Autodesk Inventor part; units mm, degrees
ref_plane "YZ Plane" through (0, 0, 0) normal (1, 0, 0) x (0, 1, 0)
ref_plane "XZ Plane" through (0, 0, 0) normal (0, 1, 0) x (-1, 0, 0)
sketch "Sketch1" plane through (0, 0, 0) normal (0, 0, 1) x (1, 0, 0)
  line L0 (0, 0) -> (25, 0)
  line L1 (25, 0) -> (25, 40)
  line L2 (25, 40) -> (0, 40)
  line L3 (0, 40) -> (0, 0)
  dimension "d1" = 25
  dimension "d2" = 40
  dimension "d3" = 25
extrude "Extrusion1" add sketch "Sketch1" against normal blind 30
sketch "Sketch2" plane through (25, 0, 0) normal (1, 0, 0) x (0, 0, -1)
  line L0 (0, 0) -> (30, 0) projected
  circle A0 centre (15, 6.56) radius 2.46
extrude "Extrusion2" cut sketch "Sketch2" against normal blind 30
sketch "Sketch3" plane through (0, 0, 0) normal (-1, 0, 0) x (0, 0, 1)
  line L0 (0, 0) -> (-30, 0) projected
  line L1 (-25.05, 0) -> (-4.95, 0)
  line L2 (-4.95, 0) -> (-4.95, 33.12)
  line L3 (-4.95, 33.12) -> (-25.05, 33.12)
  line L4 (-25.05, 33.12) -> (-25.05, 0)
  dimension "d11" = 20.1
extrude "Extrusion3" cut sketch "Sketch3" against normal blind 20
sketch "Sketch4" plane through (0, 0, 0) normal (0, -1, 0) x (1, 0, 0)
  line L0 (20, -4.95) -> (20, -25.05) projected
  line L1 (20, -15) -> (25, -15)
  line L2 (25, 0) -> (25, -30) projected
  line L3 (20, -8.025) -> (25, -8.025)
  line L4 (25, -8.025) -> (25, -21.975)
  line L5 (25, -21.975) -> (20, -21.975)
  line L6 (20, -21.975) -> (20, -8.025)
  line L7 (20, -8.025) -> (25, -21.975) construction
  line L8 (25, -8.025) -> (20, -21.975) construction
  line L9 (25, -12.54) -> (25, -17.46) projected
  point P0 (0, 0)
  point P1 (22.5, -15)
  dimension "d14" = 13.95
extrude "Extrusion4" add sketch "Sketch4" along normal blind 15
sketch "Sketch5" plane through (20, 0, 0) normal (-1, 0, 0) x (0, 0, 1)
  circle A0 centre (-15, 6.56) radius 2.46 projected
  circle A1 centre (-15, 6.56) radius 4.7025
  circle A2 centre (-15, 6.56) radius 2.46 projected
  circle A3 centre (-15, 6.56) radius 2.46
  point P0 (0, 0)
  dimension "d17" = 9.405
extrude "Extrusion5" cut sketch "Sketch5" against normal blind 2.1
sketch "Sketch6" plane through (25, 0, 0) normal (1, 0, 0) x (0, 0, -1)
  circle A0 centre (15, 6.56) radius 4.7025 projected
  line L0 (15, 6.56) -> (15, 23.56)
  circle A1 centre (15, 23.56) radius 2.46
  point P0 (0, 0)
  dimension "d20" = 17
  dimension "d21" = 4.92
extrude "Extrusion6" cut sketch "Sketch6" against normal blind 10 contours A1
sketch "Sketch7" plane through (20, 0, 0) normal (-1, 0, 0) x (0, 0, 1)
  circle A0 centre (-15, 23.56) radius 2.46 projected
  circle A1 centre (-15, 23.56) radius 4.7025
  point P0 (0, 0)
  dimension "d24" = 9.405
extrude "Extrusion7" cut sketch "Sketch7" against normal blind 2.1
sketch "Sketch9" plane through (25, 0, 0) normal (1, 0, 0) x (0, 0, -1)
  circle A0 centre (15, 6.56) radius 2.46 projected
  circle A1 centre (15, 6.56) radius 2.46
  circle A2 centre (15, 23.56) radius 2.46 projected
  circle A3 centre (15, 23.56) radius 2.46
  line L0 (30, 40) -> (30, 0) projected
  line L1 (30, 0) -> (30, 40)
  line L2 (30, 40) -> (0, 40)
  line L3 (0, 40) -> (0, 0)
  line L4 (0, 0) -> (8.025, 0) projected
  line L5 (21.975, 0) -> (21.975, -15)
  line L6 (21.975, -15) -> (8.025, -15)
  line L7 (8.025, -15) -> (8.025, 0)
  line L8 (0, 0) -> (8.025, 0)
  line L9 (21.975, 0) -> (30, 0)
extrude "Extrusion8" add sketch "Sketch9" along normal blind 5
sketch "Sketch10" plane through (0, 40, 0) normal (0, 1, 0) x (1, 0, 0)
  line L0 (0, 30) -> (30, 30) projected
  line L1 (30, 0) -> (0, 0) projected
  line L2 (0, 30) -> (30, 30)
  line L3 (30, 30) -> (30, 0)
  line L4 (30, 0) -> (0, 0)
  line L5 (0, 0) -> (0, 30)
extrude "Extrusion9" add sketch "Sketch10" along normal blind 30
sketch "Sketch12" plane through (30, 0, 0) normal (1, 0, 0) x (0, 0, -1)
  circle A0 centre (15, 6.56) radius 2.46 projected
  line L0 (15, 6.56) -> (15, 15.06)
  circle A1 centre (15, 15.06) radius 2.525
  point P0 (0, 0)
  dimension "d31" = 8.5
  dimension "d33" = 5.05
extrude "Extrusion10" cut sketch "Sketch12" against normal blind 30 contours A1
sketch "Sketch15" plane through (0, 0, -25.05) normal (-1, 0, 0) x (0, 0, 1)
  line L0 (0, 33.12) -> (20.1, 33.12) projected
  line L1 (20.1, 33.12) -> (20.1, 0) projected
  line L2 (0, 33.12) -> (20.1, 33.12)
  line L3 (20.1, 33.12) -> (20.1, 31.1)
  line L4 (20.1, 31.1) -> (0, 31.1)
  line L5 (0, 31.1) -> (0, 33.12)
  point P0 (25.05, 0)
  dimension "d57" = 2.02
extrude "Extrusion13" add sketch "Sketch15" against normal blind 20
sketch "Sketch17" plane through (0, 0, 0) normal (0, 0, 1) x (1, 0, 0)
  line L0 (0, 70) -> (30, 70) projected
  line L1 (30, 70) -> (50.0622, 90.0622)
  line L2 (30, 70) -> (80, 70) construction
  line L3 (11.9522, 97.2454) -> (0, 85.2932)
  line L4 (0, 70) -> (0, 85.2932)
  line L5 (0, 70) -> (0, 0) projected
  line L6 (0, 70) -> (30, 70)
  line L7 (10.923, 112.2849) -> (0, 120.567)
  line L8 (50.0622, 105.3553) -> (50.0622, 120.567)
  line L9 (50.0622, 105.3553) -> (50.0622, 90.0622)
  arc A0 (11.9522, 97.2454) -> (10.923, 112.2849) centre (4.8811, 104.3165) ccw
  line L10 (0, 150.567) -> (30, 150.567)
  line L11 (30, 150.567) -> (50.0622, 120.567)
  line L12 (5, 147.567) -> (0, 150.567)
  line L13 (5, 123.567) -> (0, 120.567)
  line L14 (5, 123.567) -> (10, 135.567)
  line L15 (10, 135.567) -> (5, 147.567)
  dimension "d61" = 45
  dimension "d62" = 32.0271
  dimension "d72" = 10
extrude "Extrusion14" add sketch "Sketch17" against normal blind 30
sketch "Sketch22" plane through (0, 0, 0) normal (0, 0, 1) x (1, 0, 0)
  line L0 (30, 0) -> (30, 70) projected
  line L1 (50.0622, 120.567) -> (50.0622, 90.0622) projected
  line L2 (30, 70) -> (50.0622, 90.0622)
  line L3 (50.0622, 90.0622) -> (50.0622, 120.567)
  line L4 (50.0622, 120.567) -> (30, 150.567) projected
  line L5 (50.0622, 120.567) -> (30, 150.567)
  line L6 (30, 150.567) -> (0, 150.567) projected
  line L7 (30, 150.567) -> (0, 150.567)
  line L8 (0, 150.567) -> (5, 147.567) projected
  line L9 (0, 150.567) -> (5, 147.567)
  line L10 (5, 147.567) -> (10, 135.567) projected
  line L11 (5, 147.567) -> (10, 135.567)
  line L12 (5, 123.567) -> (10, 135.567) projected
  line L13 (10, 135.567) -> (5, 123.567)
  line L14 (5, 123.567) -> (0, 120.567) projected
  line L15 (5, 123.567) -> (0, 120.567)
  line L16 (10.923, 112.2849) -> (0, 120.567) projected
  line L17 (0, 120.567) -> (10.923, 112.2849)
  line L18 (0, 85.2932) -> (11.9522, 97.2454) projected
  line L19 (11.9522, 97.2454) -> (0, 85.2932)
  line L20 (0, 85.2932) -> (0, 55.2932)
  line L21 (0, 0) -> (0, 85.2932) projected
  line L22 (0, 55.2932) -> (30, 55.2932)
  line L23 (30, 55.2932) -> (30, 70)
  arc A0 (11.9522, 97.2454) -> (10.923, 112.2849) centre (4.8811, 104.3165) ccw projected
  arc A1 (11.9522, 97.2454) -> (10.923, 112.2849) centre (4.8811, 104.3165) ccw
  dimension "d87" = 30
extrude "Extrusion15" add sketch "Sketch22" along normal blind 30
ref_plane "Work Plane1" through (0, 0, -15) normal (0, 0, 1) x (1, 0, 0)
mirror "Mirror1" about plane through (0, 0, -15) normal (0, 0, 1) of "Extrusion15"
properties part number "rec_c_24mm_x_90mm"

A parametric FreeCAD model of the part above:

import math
import FreeCAD as App
import Part
import Sketcher

V = App.Vector
Q = App.Units.Quantity

doc = App.newDocument("Part")
body = doc.addObject("PartDesign::Body", "Body")

# Sketch on XY plane
sketch1 = body.newObject("Sketcher::SketchObject", "Sketch")
sketch1.AttachmentSupport = (doc.getObject("XY_Plane"), [""])
sketch1.MapMode = "FlatFace"
sketch1.addGeometry([
    Part.LineSegment(V(0, 40, 0), V(0, 0, 0)),
    Part.LineSegment(V(0, 0, 0), V(25, 0, 0)),
    Part.LineSegment(V(25, 0, 0), V(25, 40, 0)),
    Part.LineSegment(V(25, 40, 0), V(0, 40, 0)),
], False)
sketch1.addConstraint([
    Sketcher.Constraint("Coincident", 0, 2, 1, 1),
    Sketcher.Constraint("Coincident", 1, 2, 2, 1),
    Sketcher.Constraint("Coincident", 2, 2, 3, 1),
    Sketcher.Constraint("Coincident", 3, 2, 0, 1),
    Sketcher.Constraint("Vertical", 0),
    Sketcher.Constraint("Horizontal", 1),
    Sketcher.Constraint("Vertical", 2),
    Sketcher.Constraint("Horizontal", 3),
    Sketcher.Constraint("Coincident", 0, 2, -1, 1),
    Sketcher.Constraint("DistanceX", 1, 1, 1, 2, Q("25 mm")),
    Sketcher.Constraint("DistanceY", 0, 2, 0, 1, Q("40 mm")),
])
pad1 = body.newObject("PartDesign::Pad", "Pad")
pad1.Profile = sketch1
pad1.Length = 30
pad1.Reversed = True

# Sketch on YZ plane
sketch2 = body.newObject("Sketcher::SketchObject", "Sketch001")
sketch2.AttachmentSupport = (doc.getObject("YZ_Plane"), [""])
sketch2.MapMode = "FlatFace"
sketch2.AttachmentOffset = App.Placement(V(0, 0, 25), App.Rotation())
sketch2.addGeometry(Part.Circle(V(6.6, -15, 0), V(0, 0, 1), 2.5), False)
sketch2.addConstraint([
    Sketcher.Constraint("Diameter", 0, Q("4.92 mm")),
    Sketcher.Constraint("DistanceY", 0, 3, -1, 1, Q("15 mm")),
    Sketcher.Constraint("DistanceX", -1, 1, 0, 3, Q("6.56 mm")),
])
pocket1 = body.newObject("PartDesign::Pocket", "Pocket")
pocket1.Profile = sketch2
pocket1.Length = 30

# Sketch on YZ plane
sketch3 = body.newObject("Sketcher::SketchObject", "Sketch002")
sketch3.AttachmentSupport = (doc.getObject("YZ_Plane"), [""])
sketch3.MapMode = "FlatFace"
sketch3.addGeometry([
    Part.LineSegment(V(0, -25, 0), V(0, -5, 0)),
    Part.LineSegment(V(0, -5, 0), V(33, -5, 0)),
    Part.LineSegment(V(33, -5, 0), V(33, -25, 0)),
    Part.LineSegment(V(33, -25, 0), V(0, -25, 0)),
], False)
sketch3.addConstraint([
    Sketcher.Constraint("Coincident", 0, 2, 1, 1),
    Sketcher.Constraint("Coincident", 1, 2, 2, 1),
    Sketcher.Constraint("Coincident", 2, 2, 3, 1),
    Sketcher.Constraint("Coincident", 3, 2, 0, 1),
    Sketcher.Constraint("Vertical", 0),
    Sketcher.Constraint("Horizontal", 1),
    Sketcher.Constraint("Vertical", 2),
    Sketcher.Constraint("Horizontal", 3),
    Sketcher.Constraint("PointOnObject", 0, 2, -2),
    Sketcher.Constraint("DistanceY", 0, 1, 0, 2, Q("20.1 mm")),
    Sketcher.Constraint("DistanceX", 1, 1, 1, 2, Q("33.12 mm")),
    Sketcher.Constraint("DistanceY", 0, 2, -1, 1, Q("4.95 mm")),
])
pocket2 = body.newObject("PartDesign::Pocket", "Pocket001")
pocket2.Profile = sketch3
pocket2.Length = 20
pocket2.Reversed = True

# Sketch on XZ plane
sketch4 = body.newObject("Sketcher::SketchObject", "Sketch003")
sketch4.AttachmentSupport = (doc.getObject("XZ_Plane"), [""])
sketch4.MapMode = "FlatFace"
sketch4.addGeometry([
    Part.LineSegment(V(25, -8, 0), V(20, -8, 0)),
    Part.LineSegment(V(20, -8, 0), V(20, -22, 0)),
    Part.LineSegment(V(20, -22, 0), V(25, -22, 0)),
    Part.LineSegment(V(25, -22, 0), V(25, -8, 0)),
], False)
sketch4.addConstraint([
    Sketcher.Constraint("Coincident", 0, 2, 1, 1),
    Sketcher.Constraint("Coincident", 1, 2, 2, 1),
    Sketcher.Constraint("Coincident", 2, 2, 3, 1),
    Sketcher.Constraint("Coincident", 3, 2, 0, 1),
    Sketcher.Constraint("Horizontal", 0),
    Sketcher.Constraint("Vertical", 1),
    Sketcher.Constraint("Horizontal", 2),
    Sketcher.Constraint("Vertical", 3),
    Sketcher.Constraint("DistanceY", 1, 2, 1, 1, Q("13.95 mm")),
    Sketcher.Constraint("DistanceX", 0, 2, 0, 1, Q("5 mm")),
    Sketcher.Constraint("DistanceX", -1, 1, 0, 2, Q("20 mm")),
    Sketcher.Constraint("DistanceY", 0, 2, -1, 1, Q("8.025 mm")),
])
pad2 = body.newObject("PartDesign::Pad", "Pad001")
pad2.Profile = sketch4
pad2.Length = 15

# Sketch on YZ plane
sketch5 = body.newObject("Sketcher::SketchObject", "Sketch004")
sketch5.AttachmentSupport = (doc.getObject("YZ_Plane"), [""])
sketch5.MapMode = "FlatFace"
sketch5.AttachmentOffset = App.Placement(V(0, 0, 20), App.Rotation())
sketch5.addGeometry([
    Part.Circle(V(6.6, -15, 0), V(0, 0, 1), 4.7),
    Part.Circle(V(6.6, -15, 0), V(0, 0, 1), 2.5),
], False)
sketch5.addConstraint([
    Sketcher.Constraint("Coincident", 1, 3, 0, 3),
    Sketcher.Constraint("Diameter", 0, Q("9.405 mm")),
    Sketcher.Constraint("Diameter", 1, Q("4.92 mm")),
    Sketcher.Constraint("DistanceY", 0, 3, -1, 1, Q("15 mm")),
    Sketcher.Constraint("DistanceX", -1, 1, 0, 3, Q("6.56 mm")),
])
pocket3 = body.newObject("PartDesign::Pocket", "Pocket002")
pocket3.Profile = sketch5
pocket3.Length = 2.1
pocket3.Reversed = True

# Sketch on YZ plane
sketch6 = body.newObject("Sketcher::SketchObject", "Sketch005")
sketch6.AttachmentSupport = (doc.getObject("YZ_Plane"), [""])
sketch6.MapMode = "FlatFace"
sketch6.AttachmentOffset = App.Placement(V(0, 0, 25), App.Rotation())
sketch6.addGeometry(Part.Circle(V(23.6, -15, 0), V(0, 0, 1), 2.5), False)
sketch6.addConstraint([
    Sketcher.Constraint("Diameter", 0, Q("4.92 mm")),
    Sketcher.Constraint("DistanceY", 0, 3, -1, 1, Q("15 mm")),
    Sketcher.Constraint("DistanceX", -1, 1, 0, 3, Q("23.56 mm")),
])
pocket4 = body.newObject("PartDesign::Pocket", "Pocket003")
pocket4.Profile = sketch6
pocket4.Length = 10

# Sketch on YZ plane
sketch7 = body.newObject("Sketcher::SketchObject", "Sketch006")
sketch7.AttachmentSupport = (doc.getObject("YZ_Plane"), [""])
sketch7.MapMode = "FlatFace"
sketch7.AttachmentOffset = App.Placement(V(0, 0, 20), App.Rotation())
sketch7.addGeometry([
    Part.Circle(V(23.6, -15, 0), V(0, 0, 1), 4.7),
    Part.Circle(V(23.6, -15, 0), V(0, 0, 1), 2.5),
], False)
sketch7.addConstraint([
    Sketcher.Constraint("Coincident", 1, 3, 0, 3),
    Sketcher.Constraint("Diameter", 0, Q("9.405 mm")),
    Sketcher.Constraint("Diameter", 1, Q("4.92 mm")),
    Sketcher.Constraint("DistanceY", 0, 3, -1, 1, Q("15 mm")),
    Sketcher.Constraint("DistanceX", -1, 1, 0, 3, Q("23.56 mm")),
])
pocket5 = body.newObject("PartDesign::Pocket", "Pocket004")
pocket5.Profile = sketch7
pocket5.Length = 2.1
pocket5.Reversed = True

# Sketch on YZ plane
sketch8 = body.newObject("Sketcher::SketchObject", "Sketch007")
sketch8.AttachmentSupport = (doc.getObject("YZ_Plane"), [""])
sketch8.MapMode = "FlatFace"
sketch8.AttachmentOffset = App.Placement(V(0, 0, 25), App.Rotation())
sketch8.addGeometry([
    Part.LineSegment(V(0, -30, 0), V(40, -30, 0)),  # 0
    Part.LineSegment(V(40, -30, 0), V(40, 0, 0)),  # 1
    Part.LineSegment(V(40, 0, 0), V(0, 0, 0)),  # 2
    Part.LineSegment(V(0, 0, 0), V(0, -8, 0)),  # 3
    Part.LineSegment(V(0, -8, 0), V(-15, -8, 0)),  # 4
    Part.LineSegment(V(-15, -8, 0), V(-15, -22, 0)),  # 5
    Part.LineSegment(V(-15, -22, 0), V(0, -22, 0)),  # 6
    Part.LineSegment(V(0, -22, 0), V(0, -30, 0)),  # 7
    Part.Circle(V(6.6, -15, 0), V(0, 0, 1), 2.5),  # 8
    Part.Circle(V(23.6, -15, 0), V(0, 0, 1), 2.5),  # 9
], False)
sketch8.addConstraint([
    Sketcher.Constraint("Coincident", 0, 2, 1, 1),
    Sketcher.Constraint("Coincident", 1, 2, 2, 1),
    Sketcher.Constraint("Coincident", 2, 2, 3, 1),
    Sketcher.Constraint("Coincident", 3, 2, 4, 1),
    Sketcher.Constraint("Coincident", 4, 2, 5, 1),
    Sketcher.Constraint("Coincident", 5, 2, 6, 1),
    Sketcher.Constraint("Coincident", 6, 2, 7, 1),
    Sketcher.Constraint("Coincident", 7, 2, 0, 1),
    Sketcher.Constraint("Horizontal", 0),
    Sketcher.Constraint("Vertical", 1),
    Sketcher.Constraint("Horizontal", 2),
    Sketcher.Constraint("Vertical", 3),
    Sketcher.Constraint("Horizontal", 4),
    Sketcher.Constraint("Vertical", 5),
    Sketcher.Constraint("Horizontal", 6),
    Sketcher.Constraint("Vertical", 7),
    Sketcher.Constraint("Coincident", 2, 2, -1, 1),
    Sketcher.Constraint("Equal", 8, 9),
    Sketcher.Constraint("PointOnObject", 6, 2, -2),
    Sketcher.Constraint("Horizontal", 8, 3, 9, 3),
    Sketcher.Constraint("Equal", 3, 7),
    Sketcher.Constraint("Diameter", 8, Q("4.92 mm")),
    Sketcher.Constraint("DistanceX", 0, 1, 0, 2, Q("40 mm")),
    Sketcher.Constraint("DistanceX", 4, 2, 4, 1, Q("15 mm")),
    Sketcher.Constraint("DistanceY", 1, 1, 1, 2, Q("30 mm")),
    Sketcher.Constraint("DistanceY", 8, 3, -1, 1, Q("15 mm")),
    Sketcher.Constraint("DistanceX", 8, 3, 9, 3, Q("17 mm")),
    Sketcher.Constraint("DistanceY", 5, 2, 5, 1, Q("13.95 mm")),
    Sketcher.Constraint("DistanceX", -1, 1, 8, 3, Q("6.56 mm")),
])
pad3 = body.newObject("PartDesign::Pad", "Pad002")
pad3.Profile = sketch8
pad3.Length = 5

# Sketch on XZ plane
sketch9 = body.newObject("Sketcher::SketchObject", "Sketch008")
sketch9.AttachmentSupport = (doc.getObject("XZ_Plane"), [""])
sketch9.MapMode = "FlatFace"
sketch9.AttachmentOffset = App.Placement(V(0, 0, -40), App.Rotation())
sketch9.addGeometry([
    Part.LineSegment(V(30, -30, 0), V(0, -30, 0)),
    Part.LineSegment(V(0, -30, 0), V(0, 0, 0)),
    Part.LineSegment(V(0, 0, 0), V(30, 0, 0)),
    Part.LineSegment(V(30, 0, 0), V(30, -30, 0)),
], False)
sketch9.addConstraint([
    Sketcher.Constraint("Coincident", 0, 2, 1, 1),
    Sketcher.Constraint("Coincident", 1, 2, 2, 1),
    Sketcher.Constraint("Coincident", 2, 2, 3, 1),
    Sketcher.Constraint("Coincident", 3, 2, 0, 1),
    Sketcher.Constraint("Horizontal", 0),
    Sketcher.Constraint("Vertical", 1),
    Sketcher.Constraint("Horizontal", 2),
    Sketcher.Constraint("Vertical", 3),
    Sketcher.Constraint("Coincident", 1, 2, -1, 1),
    Sketcher.Constraint("Equal", 2, 1),
    Sketcher.Constraint("DistanceX", 0, 2, 0, 1, Q("30 mm")),
])
pad4 = body.newObject("PartDesign::Pad", "Pad003")
pad4.Profile = sketch9
pad4.Length = 30
pad4.Reversed = True

# Sketch on YZ plane
sketch10 = body.newObject("Sketcher::SketchObject", "Sketch009")
sketch10.AttachmentSupport = (doc.getObject("YZ_Plane"), [""])
sketch10.MapMode = "FlatFace"
sketch10.AttachmentOffset = App.Placement(V(0, 0, 30), App.Rotation())
sketch10.addGeometry(Part.Circle(V(15.1, -15, 0), V(0, 0, 1), 2.5), False)
sketch10.addConstraint([
    Sketcher.Constraint("Diameter", 0, Q("5.05 mm")),
    Sketcher.Constraint("DistanceY", 0, 3, -1, 1, Q("15 mm")),
    Sketcher.Constraint("DistanceX", -1, 1, 0, 3, Q("15.06 mm")),
])
pocket6 = body.newObject("PartDesign::Pocket", "Pocket005")
pocket6.Profile = sketch10
pocket6.Length = 30

# Sketch on YZ plane
sketch11 = body.newObject("Sketcher::SketchObject", "Sketch010")
sketch11.AttachmentSupport = (doc.getObject("YZ_Plane"), [""])
sketch11.MapMode = "FlatFace"
sketch11.addGeometry([
    Part.LineSegment(V(33.1, -5, 0), V(33.1, -25.1, 0)),
    Part.LineSegment(V(33.1, -25.1, 0), V(31.1, -25.1, 0)),
    Part.LineSegment(V(31.1, -25.1, 0), V(31.1, -5, 0)),
    Part.LineSegment(V(31.1, -5, 0), V(33.1, -5, 0)),
], False)
sketch11.addConstraint([
    Sketcher.Constraint("Coincident", 0, 2, 1, 1),
    Sketcher.Constraint("Coincident", 1, 2, 2, 1),
    Sketcher.Constraint("Coincident", 2, 2, 3, 1),
    Sketcher.Constraint("Coincident", 3, 2, 0, 1),
    Sketcher.Constraint("Vertical", 0),
    Sketcher.Constraint("Horizontal", 1),
    Sketcher.Constraint("Vertical", 2),
    Sketcher.Constraint("Horizontal", 3),
    Sketcher.Constraint("DistanceX", 1, 2, 1, 1, Q("2.02 mm")),
    Sketcher.Constraint("DistanceY", 0, 2, 0, 1, Q("20.1 mm")),
    Sketcher.Constraint("DistanceX", -1, 1, 1, 2, Q("31.1 mm")),
    Sketcher.Constraint("DistanceY", 0, 2, -1, 1, Q("25.05 mm")),
])
pad5 = body.newObject("PartDesign::Pad", "Pad004")
pad5.Profile = sketch11
pad5.Length = 20

# Sketch on XY plane
sketch12 = body.newObject("Sketcher::SketchObject", "Sketch011")
sketch12.AttachmentSupport = (doc.getObject("XY_Plane"), [""])
sketch12.MapMode = "FlatFace"
sketch12.addGeometry([
    Part.LineSegment(V(0, 85, 0), V(0, 70, 0)),  # 0
    Part.LineSegment(V(0, 70, 0), V(30, 70, 0)),  # 1
    Part.LineSegment(V(30, 70, 0), V(50, 90, 0)),  # 2
    Part.LineSegment(V(50, 90, 0), V(50, 121, 0)),  # 3
    Part.LineSegment(V(50, 121, 0), V(30, 151, 0)),  # 4
    Part.LineSegment(V(30, 151, 0), V(0, 151, 0)),  # 5
    Part.LineSegment(V(0, 151, 0), V(5, 148, 0)),  # 6
    Part.LineSegment(V(5, 148, 0), V(10, 136, 0)),  # 7
    Part.LineSegment(V(10, 136, 0), V(5, 124, 0)),  # 8
    Part.LineSegment(V(5, 124, 0), V(0, 121, 0)),  # 9
    Part.LineSegment(V(0, 121, 0), V(11, 112, 0)),  # 10
    Part.ArcOfCircle(Part.Circle(V(5, 104, 0), V(0, 0, 1), 10), math.radians(-45), math.radians(53)),  # 11
    Part.LineSegment(V(12, 97, 0), V(0, 85, 0)),  # 12
], False)
sketch12.addConstraint([
    Sketcher.Constraint("Coincident", 0, 2, 1, 1),
    Sketcher.Constraint("Coincident", 1, 2, 2, 1),
    Sketcher.Constraint("Coincident", 2, 2, 3, 1),
    Sketcher.Constraint("Coincident", 3, 2, 4, 1),
    Sketcher.Constraint("Coincident", 4, 2, 5, 1),
    Sketcher.Constraint("Coincident", 5, 2, 6, 1),
    Sketcher.Constraint("Coincident", 6, 2, 7, 1),
    Sketcher.Constraint("Coincident", 7, 2, 8, 1),
    Sketcher.Constraint("Coincident", 8, 2, 9, 1),
    Sketcher.Constraint("Coincident", 9, 2, 10, 1),
    Sketcher.Constraint("Tangent", 10, 2, 11, 2),
    Sketcher.Constraint("Tangent", 11, 1, 12, 1),
    Sketcher.Constraint("Coincident", 12, 2, 0, 1),
    Sketcher.Constraint("Vertical", 0),
    Sketcher.Constraint("Horizontal", 1),
    Sketcher.Constraint("Vertical", 3),
    Sketcher.Constraint("Horizontal", 5),
    Sketcher.Constraint("PointOnObject", 0, 2, -2),
    Sketcher.Constraint("PointOnObject", 5, 2, -2),
    Sketcher.Constraint("PointOnObject", 9, 2, -2),
    Sketcher.Constraint("Parallel", 2, 12),
    Sketcher.Constraint("Horizontal", 3, 2, 9, 2),
    Sketcher.Constraint("Vertical", 1, 2, 4, 2),
    Sketcher.Constraint("Vertical", 6, 2, 8, 2),
    Sketcher.Constraint("Equal", 7, 8),
    Sketcher.Constraint("Equal", 6, 9),
    Sketcher.Constraint("Radius", 11, Q("10 mm")),
    Sketcher.Constraint("Angle", 2, Q("45 deg")),
    Sketcher.Constraint("DistanceX", -1, 1, 7, 2, Q("10 mm")),
    Sketcher.Constraint("DistanceX", 1, 1, 1, 2, Q("30 mm")),
    Sketcher.Constraint("Distance", 7, Q("13 mm")),
    Sketcher.Constraint("DistanceY", -1, 1, 0, 2, Q("70 mm")),
    Sketcher.Constraint("DistanceX", -1, 1, 6, 2, Q("5 mm")),
    Sketcher.Constraint("DistanceY", 3, 2, 4, 2, Q("30 mm")),
    Sketcher.Constraint("Angle", 10, Q("-37.1703 deg")),
    Sketcher.Constraint("Distance", 4, Q("36.09 mm")),
    Sketcher.Constraint("Distance", 12, Q("16.903 mm")),
    Sketcher.Constraint("DistanceY", 0, 2, 0, 1, Q("15.2932 mm")),
])
pad6 = body.newObject("PartDesign::Pad", "Pad005")
pad6.Profile = sketch12
pad6.Length = 30
pad6.Reversed = True

# Sketch on XY plane
sketch13 = body.newObject("Sketcher::SketchObject", "Sketch012")
sketch13.AttachmentSupport = (doc.getObject("XY_Plane"), [""])
sketch13.MapMode = "FlatFace"
sketch13.addGeometry([
    Part.LineSegment(V(0, 55, 0), V(30, 55, 0)),  # 0
    Part.LineSegment(V(30, 55, 0), V(30, 70, 0)),  # 1
    Part.LineSegment(V(30, 70, 0), V(50, 90, 0)),  # 2
    Part.LineSegment(V(50, 90, 0), V(50, 121, 0)),  # 3
    Part.LineSegment(V(50, 121, 0), V(30, 151, 0)),  # 4
    Part.LineSegment(V(30, 151, 0), V(0, 151, 0)),  # 5
    Part.LineSegment(V(0, 151, 0), V(5, 148, 0)),  # 6
    Part.LineSegment(V(5, 148, 0), V(10, 136, 0)),  # 7
    Part.LineSegment(V(10, 136, 0), V(5, 124, 0)),  # 8
    Part.LineSegment(V(5, 124, 0), V(0, 121, 0)),  # 9
    Part.LineSegment(V(0, 121, 0), V(11, 112, 0)),  # 10
    Part.ArcOfCircle(Part.Circle(V(5, 104, 0), V(0, 0, 1), 10), math.radians(-45), math.radians(53)),  # 11
    Part.LineSegment(V(12, 97, 0), V(0, 85, 0)),  # 12
    Part.LineSegment(V(0, 85, 0), V(0, 55, 0)),  # 13
], False)
sketch13.addConstraint([
    Sketcher.Constraint("Coincident", 0, 2, 1, 1),
    Sketcher.Constraint("Coincident", 1, 2, 2, 1),
    Sketcher.Constraint("Coincident", 2, 2, 3, 1),
    Sketcher.Constraint("Coincident", 3, 2, 4, 1),
    Sketcher.Constraint("Coincident", 4, 2, 5, 1),
    Sketcher.Constraint("Coincident", 5, 2, 6, 1),
    Sketcher.Constraint("Coincident", 6, 2, 7, 1),
    Sketcher.Constraint("Coincident", 7, 2, 8, 1),
    Sketcher.Constraint("Coincident", 8, 2, 9, 1),
    Sketcher.Constraint("Coincident", 9, 2, 10, 1),
    Sketcher.Constraint("Tangent", 10, 2, 11, 2),
    Sketcher.Constraint("Tangent", 11, 1, 12, 1),
    Sketcher.Constraint("Coincident", 12, 2, 13, 1),
    Sketcher.Constraint("Coincident", 13, 2, 0, 1),
    Sketcher.Constraint("Horizontal", 0),
    Sketcher.Constraint("Vertical", 1),
    Sketcher.Constraint("Vertical", 3),
    Sketcher.Constraint("Horizontal", 5),
    Sketcher.Constraint("Vertical", 13),
    Sketcher.Constraint("PointOnObject", 5, 2, -2),
    Sketcher.Constraint("PointOnObject", 9, 2, -2),
    Sketcher.Constraint("PointOnObject", 12, 2, -2),
    Sketcher.Constraint("Parallel", 2, 12),
    Sketcher.Constraint("Horizontal", 3, 2, 9, 2),
    Sketcher.Constraint("Vertical", 1, 2, 4, 2),
    Sketcher.Constraint("Vertical", 6, 2, 8, 2),
    Sketcher.Constraint("Equal", 5, 13),
    Sketcher.Constraint("Equal", 7, 8),
    Sketcher.Constraint("Equal", 6, 9),
    Sketcher.Constraint("DistanceX", 0, 1, 0, 2, Q("30 mm")),
    Sketcher.Constraint("Radius", 11, Q("10 mm")),
    Sketcher.Constraint("DistanceY", 3, 2, 4, 2, Q("30 mm")),
    Sketcher.Constraint("Angle", 2, Q("45 deg")),
    Sketcher.Constraint("Distance", 7, Q("13 mm")),
    Sketcher.Constraint("DistanceY", -1, 1, 1, 2, Q("70 mm")),
    Sketcher.Constraint("DistanceX", -1, 1, 6, 2, Q("5 mm")),
    Sketcher.Constraint("DistanceX", -1, 1, 7, 2, Q("10 mm")),
    Sketcher.Constraint("Angle", 10, Q("-37.1703 deg")),
    Sketcher.Constraint("Distance", 4, Q("36.09 mm")),
    Sketcher.Constraint("Distance", 12, Q("16.903 mm")),
    Sketcher.Constraint("DistanceY", 1, 1, 1, 2, Q("14.7068 mm")),
])
pad7 = body.newObject("PartDesign::Pad", "Pad006")
pad7.Profile = sketch13
pad7.Length = 30
doc.recompute()

datumplane = body.newObject("PartDesign::Plane", "DatumPlane")
datumplane.AttachmentSupport = (doc.getObject("XY_Plane"), [""])
datumplane.MapMode = "FlatFace"
datumplane.AttachmentOffset = App.Placement(V(0, 0, -15), App.Rotation())
mirrored = body.newObject("PartDesign::Mirrored", "Mirrored")
mirrored.Originals = [pad7]
mirrored.MirrorPlane = (datumplane, [""])
body.Tip = mirrored

doc.recompute()
